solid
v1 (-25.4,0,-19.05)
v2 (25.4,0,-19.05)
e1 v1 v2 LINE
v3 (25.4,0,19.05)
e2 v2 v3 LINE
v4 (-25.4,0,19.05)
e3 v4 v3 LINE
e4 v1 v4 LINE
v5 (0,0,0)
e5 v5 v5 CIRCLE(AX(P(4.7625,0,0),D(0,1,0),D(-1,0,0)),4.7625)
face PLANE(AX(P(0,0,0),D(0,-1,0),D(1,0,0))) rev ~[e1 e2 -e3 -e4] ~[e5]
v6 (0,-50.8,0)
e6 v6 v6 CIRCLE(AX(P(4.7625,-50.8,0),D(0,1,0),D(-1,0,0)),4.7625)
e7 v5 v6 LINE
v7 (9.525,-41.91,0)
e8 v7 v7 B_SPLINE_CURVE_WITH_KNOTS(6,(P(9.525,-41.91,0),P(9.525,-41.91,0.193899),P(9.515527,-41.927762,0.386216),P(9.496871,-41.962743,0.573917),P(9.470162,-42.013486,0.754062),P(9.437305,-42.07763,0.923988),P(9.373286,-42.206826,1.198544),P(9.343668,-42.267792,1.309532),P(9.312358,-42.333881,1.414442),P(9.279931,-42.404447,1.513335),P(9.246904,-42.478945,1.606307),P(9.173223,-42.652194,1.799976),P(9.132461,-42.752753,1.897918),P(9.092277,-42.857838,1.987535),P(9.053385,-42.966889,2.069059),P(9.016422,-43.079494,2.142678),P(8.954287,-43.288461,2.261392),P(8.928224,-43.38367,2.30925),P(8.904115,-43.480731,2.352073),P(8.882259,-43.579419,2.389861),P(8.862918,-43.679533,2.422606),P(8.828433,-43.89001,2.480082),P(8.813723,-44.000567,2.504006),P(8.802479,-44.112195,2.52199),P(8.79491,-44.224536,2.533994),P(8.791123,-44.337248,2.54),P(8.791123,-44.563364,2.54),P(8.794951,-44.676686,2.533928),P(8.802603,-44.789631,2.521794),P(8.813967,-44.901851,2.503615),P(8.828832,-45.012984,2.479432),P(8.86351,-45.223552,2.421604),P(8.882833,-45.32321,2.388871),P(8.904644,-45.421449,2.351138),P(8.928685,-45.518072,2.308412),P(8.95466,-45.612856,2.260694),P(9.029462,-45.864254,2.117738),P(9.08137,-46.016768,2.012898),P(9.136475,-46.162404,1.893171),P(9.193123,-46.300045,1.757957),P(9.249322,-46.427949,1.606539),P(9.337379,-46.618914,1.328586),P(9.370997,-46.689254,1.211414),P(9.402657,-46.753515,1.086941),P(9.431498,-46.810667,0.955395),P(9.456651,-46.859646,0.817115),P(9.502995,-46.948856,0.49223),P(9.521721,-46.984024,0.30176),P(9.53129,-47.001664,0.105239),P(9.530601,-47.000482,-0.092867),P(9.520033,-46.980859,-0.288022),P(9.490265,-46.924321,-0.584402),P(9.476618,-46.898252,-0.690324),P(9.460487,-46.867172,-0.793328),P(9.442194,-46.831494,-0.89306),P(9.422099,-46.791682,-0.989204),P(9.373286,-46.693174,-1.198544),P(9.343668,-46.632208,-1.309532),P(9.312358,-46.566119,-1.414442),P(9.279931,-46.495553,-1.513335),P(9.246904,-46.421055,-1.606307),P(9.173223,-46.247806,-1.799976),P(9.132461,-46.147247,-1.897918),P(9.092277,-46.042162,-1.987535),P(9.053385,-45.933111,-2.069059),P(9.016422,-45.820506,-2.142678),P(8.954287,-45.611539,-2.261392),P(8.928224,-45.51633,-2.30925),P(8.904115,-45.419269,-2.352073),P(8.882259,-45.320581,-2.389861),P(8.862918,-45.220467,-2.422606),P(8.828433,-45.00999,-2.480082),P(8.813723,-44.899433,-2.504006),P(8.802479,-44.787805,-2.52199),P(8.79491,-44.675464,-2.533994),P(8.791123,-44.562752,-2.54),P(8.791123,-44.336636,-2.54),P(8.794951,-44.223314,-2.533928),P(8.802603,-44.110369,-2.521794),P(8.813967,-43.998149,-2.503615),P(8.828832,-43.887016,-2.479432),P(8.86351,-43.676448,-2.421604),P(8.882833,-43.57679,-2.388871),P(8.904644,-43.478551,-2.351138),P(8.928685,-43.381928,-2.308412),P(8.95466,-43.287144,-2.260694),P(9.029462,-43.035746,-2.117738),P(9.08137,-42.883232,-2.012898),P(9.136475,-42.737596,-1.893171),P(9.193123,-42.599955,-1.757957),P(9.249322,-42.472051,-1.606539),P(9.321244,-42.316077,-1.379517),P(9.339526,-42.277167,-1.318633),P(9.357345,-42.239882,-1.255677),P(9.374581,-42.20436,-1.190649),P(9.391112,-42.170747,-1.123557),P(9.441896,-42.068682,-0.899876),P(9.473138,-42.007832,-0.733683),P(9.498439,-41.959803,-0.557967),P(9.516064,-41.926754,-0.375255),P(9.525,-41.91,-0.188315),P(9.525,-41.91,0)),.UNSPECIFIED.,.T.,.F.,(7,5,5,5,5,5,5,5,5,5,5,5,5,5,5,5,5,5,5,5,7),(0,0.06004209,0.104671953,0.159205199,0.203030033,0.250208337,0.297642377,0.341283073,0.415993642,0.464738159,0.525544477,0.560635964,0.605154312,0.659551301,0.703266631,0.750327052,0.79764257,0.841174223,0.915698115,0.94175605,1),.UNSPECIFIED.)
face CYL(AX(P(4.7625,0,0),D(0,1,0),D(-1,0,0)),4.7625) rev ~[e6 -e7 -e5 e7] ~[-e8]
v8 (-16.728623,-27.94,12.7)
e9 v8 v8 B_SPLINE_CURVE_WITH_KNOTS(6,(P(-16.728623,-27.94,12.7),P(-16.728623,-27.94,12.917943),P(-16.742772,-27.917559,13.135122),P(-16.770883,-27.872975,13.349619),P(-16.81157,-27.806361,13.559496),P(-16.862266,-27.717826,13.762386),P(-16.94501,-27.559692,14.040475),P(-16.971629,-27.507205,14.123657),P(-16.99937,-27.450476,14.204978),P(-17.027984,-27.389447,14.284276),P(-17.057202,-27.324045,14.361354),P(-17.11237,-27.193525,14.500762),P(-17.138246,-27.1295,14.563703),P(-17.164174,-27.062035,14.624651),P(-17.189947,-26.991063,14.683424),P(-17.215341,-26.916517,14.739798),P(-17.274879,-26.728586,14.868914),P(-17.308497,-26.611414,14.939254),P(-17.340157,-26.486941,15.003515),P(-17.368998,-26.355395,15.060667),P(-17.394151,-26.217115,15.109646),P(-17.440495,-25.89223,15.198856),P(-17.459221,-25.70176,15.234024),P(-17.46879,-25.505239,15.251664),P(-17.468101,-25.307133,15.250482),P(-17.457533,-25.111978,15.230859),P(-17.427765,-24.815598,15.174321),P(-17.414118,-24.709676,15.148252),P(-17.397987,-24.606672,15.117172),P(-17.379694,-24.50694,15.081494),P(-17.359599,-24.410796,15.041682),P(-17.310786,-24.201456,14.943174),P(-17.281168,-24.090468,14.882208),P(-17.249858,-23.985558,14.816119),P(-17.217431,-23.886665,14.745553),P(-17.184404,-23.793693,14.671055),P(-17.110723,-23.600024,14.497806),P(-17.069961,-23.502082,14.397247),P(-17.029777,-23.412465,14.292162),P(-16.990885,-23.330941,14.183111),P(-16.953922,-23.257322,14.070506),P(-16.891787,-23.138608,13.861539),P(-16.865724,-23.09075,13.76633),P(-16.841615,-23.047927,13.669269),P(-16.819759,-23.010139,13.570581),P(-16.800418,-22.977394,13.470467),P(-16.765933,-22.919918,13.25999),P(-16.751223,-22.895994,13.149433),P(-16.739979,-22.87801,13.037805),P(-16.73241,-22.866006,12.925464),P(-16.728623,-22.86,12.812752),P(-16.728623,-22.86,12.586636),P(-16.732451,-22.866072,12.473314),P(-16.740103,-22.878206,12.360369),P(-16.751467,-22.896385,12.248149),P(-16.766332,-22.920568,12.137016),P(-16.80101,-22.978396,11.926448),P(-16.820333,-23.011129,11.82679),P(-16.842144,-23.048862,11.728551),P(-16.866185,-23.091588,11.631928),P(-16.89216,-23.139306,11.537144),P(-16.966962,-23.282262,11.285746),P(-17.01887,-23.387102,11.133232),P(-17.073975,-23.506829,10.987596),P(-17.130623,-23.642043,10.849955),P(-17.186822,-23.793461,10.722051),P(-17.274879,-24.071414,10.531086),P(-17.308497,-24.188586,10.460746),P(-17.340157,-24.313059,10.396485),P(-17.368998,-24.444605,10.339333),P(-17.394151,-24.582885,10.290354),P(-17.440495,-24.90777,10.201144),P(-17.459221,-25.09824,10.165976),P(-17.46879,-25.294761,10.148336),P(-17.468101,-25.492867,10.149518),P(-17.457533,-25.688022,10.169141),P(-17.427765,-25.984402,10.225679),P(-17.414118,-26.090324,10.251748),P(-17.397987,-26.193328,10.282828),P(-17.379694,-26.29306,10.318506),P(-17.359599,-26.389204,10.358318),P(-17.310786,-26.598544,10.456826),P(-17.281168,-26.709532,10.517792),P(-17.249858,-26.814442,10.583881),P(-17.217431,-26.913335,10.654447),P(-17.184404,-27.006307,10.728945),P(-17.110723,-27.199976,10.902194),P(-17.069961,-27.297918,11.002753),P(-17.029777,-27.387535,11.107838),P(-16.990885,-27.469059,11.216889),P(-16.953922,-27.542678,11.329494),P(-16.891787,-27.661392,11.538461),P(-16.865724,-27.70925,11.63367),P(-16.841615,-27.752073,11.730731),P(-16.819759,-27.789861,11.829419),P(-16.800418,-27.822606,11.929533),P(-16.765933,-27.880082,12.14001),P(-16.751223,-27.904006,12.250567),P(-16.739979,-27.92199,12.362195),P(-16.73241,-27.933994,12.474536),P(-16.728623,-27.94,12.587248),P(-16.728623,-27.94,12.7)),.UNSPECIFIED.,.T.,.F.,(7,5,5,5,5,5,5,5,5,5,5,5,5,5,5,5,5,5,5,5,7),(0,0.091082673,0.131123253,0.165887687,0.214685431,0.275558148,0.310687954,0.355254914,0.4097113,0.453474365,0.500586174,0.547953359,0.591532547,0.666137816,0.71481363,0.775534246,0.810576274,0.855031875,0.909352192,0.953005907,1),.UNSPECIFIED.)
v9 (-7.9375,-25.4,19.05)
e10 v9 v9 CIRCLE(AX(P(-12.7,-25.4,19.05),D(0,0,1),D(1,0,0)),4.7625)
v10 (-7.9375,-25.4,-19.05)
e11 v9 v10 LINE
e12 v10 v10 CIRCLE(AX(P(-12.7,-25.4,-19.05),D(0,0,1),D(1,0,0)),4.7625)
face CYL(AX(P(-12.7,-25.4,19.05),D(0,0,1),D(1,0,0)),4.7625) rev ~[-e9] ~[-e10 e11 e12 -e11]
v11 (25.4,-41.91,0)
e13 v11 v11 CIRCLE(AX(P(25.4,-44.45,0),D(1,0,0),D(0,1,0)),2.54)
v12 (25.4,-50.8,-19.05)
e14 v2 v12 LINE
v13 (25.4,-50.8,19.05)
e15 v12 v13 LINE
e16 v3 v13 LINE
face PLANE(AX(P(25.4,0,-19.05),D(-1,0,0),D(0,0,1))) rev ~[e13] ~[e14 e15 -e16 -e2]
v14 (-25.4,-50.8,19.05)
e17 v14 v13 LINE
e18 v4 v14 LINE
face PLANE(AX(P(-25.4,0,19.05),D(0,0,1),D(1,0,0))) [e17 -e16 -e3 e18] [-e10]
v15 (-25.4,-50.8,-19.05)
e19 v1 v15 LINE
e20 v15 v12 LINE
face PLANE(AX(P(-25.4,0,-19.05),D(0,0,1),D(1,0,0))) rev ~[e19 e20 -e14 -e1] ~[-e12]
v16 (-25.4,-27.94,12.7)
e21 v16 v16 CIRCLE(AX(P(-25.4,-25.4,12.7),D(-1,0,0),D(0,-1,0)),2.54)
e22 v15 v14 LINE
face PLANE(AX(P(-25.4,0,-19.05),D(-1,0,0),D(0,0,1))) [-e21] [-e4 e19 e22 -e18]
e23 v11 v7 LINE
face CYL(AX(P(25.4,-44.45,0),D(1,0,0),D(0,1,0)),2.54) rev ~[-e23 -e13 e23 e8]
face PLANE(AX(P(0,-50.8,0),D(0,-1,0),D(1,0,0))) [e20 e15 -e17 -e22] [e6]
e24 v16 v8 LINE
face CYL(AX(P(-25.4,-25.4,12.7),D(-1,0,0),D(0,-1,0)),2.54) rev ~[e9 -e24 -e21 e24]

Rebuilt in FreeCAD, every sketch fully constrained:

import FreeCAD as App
import Part
import Sketcher

V = App.Vector
Q = App.Units.Quantity


def add_polygon(sketch, points):
    """Adds a closed chain of lines whose ends are joined by coincident constraints."""
    first, n = sketch.GeometryCount, len(points)
    for a, b in zip(points, points[1:] + points[:1]):
        sketch.addGeometry(Part.LineSegment(App.Vector(*a, 0), App.Vector(*b, 0)), False)
    for i in range(n):
        sketch.addConstraint(Sketcher.Constraint("Coincident", first + i, 2, first + (i + 1) % n, 1))

doc = App.newDocument("Part")
body = doc.addObject("PartDesign::Body", "Body")

sketch1 = doc.addObject("Sketcher::SketchObject", "Sketch")
body.addObject(sketch1)
sketch1.AttachmentSupport = (doc.XZ_Plane, [""])
sketch1.MapMode = "FlatFace"
add_polygon(sketch1, [(-25.4, 19.05), (-25.4, -19.05), (25.4, -19.05), (25.4, 19.05)])
sketch1.addConstraint(Sketcher.Constraint("Vertical", 0))
sketch1.addConstraint(Sketcher.Constraint("Horizontal", 1))
sketch1.addConstraint(Sketcher.Constraint("Vertical", 2))
sketch1.addConstraint(Sketcher.Constraint("Horizontal", 3))
sketch1.addConstraint(Sketcher.Constraint("Symmetric", 0, 2, 2, 2, -1, 1))
sketch1.addConstraint(Sketcher.Constraint("DistanceX", 1, 1, 1, 2, Q("2 in")))
sketch1.addConstraint(Sketcher.Constraint("DistanceY", 0, 2, 0, 1, Q("1.5 in")))
pad1 = doc.addObject("PartDesign::Pad", "Pad")
body.addObject(pad1)
pad1.Profile = sketch1
pad1.Length = Q("2 in")

sketch2 = doc.addObject("Sketcher::SketchObject", "Sketch001")
body.addObject(sketch2)
sketch2.AttachmentSupport = (doc.XZ_Plane, [""])
sketch2.MapMode = "FlatFace"
sketch2.addGeometry(Part.Circle(V(4.7625, 0, 0), V(0, 0, 1), 4.7625), False)
sketch2.addConstraint(Sketcher.Constraint("PointOnObject", 0, 3, -1))
sketch2.addConstraint(Sketcher.Constraint("Diameter", 0, Q("0.375 in")))
sketch2.addConstraint(Sketcher.Constraint("DistanceX", -1, 1, 0, 3, Q("0.1875 in")))
pocket1 = doc.addObject("PartDesign::Pocket", "Pocket")
body.addObject(pocket1)
pocket1.Profile = sketch2
pocket1.Type = "ThroughAll"
pocket1.Reversed = True

sketch3 = doc.addObject("Sketcher::SketchObject", "Sketch002")
body.addObject(sketch3)
sketch3.AttachmentSupport = (doc.XY_Plane, [""])
sketch3.MapMode = "FlatFace"
sketch3.AttachmentOffset = App.Placement(V(0, 0, 0.75 * 25.4), App.Rotation())
sketch3.addGeometry(Part.Circle(V(-12.7, -25.4, 0), V(0, 0, 1), 4.7625), False)
sketch3.addConstraint(Sketcher.Constraint("Diameter", 0, Q("0.375 in")))
sketch3.addConstraint(Sketcher.Constraint("DistanceY", 0, 3, -1, 1, Q("1 in")))
sketch3.addConstraint(Sketcher.Constraint("DistanceX", 0, 3, -1, 1, Q("0.5 in")))
pocket2 = doc.addObject("PartDesign::Pocket", "Pocket001")
body.addObject(pocket2)
pocket2.Profile = sketch3
pocket2.Type = "ThroughAll"

sketch4 = doc.addObject("Sketcher::SketchObject", "Sketch003")
body.addObject(sketch4)
sketch4.AttachmentSupport = (doc.YZ_Plane, [""])
sketch4.MapMode = "FlatFace"
sketch4.AttachmentOffset = App.Placement(V(0, 0, -1 * 25.4), App.Rotation())
sketch4.addGeometry(Part.Circle(V(-25.4, 12.7, 0), V(0, 0, 1), 2.54), False)
sketch4.addConstraint(Sketcher.Constraint("Diameter", 0, Q("0.2 in")))
sketch4.addConstraint(Sketcher.Constraint("DistanceX", 0, 3, -1, 1, Q("1 in")))
sketch4.addConstraint(Sketcher.Constraint("DistanceY", -1, 1, 0, 3, Q("0.5 in")))
pocket3 = doc.addObject("PartDesign::Pocket", "Pocket002")
body.addObject(pocket3)
pocket3.Profile = sketch4
pocket3.Length = Q("0.5 in")
pocket3.Reversed = True

sketch5 = doc.addObject("Sketcher::SketchObject", "Sketch004")
body.addObject(sketch5)
sketch5.AttachmentSupport = (doc.YZ_Plane, [""])
sketch5.MapMode = "FlatFace"
sketch5.AttachmentOffset = App.Placement(V(0, 0, 1 * 25.4), App.Rotation())
sketch5.addGeometry(Part.Circle(V(-44.45, 0, 0), V(0, 0, 1), 2.54), False)
sketch5.addConstraint(Sketcher.Constraint("PointOnObject", 0, 3, -1))
sketch5.addConstraint(Sketcher.Constraint("Diameter", 0, Q("0.2 in")))
sketch5.addConstraint(Sketcher.Constraint("DistanceX", 0, 3, -1, 1, Q("1.75 in")))
pocket4 = doc.addObject("PartDesign::Pocket", "Pocket003")
body.addObject(pocket4)
pocket4.Profile = sketch5
pocket4.Length = Q("0.75 in")

doc.recompute()
